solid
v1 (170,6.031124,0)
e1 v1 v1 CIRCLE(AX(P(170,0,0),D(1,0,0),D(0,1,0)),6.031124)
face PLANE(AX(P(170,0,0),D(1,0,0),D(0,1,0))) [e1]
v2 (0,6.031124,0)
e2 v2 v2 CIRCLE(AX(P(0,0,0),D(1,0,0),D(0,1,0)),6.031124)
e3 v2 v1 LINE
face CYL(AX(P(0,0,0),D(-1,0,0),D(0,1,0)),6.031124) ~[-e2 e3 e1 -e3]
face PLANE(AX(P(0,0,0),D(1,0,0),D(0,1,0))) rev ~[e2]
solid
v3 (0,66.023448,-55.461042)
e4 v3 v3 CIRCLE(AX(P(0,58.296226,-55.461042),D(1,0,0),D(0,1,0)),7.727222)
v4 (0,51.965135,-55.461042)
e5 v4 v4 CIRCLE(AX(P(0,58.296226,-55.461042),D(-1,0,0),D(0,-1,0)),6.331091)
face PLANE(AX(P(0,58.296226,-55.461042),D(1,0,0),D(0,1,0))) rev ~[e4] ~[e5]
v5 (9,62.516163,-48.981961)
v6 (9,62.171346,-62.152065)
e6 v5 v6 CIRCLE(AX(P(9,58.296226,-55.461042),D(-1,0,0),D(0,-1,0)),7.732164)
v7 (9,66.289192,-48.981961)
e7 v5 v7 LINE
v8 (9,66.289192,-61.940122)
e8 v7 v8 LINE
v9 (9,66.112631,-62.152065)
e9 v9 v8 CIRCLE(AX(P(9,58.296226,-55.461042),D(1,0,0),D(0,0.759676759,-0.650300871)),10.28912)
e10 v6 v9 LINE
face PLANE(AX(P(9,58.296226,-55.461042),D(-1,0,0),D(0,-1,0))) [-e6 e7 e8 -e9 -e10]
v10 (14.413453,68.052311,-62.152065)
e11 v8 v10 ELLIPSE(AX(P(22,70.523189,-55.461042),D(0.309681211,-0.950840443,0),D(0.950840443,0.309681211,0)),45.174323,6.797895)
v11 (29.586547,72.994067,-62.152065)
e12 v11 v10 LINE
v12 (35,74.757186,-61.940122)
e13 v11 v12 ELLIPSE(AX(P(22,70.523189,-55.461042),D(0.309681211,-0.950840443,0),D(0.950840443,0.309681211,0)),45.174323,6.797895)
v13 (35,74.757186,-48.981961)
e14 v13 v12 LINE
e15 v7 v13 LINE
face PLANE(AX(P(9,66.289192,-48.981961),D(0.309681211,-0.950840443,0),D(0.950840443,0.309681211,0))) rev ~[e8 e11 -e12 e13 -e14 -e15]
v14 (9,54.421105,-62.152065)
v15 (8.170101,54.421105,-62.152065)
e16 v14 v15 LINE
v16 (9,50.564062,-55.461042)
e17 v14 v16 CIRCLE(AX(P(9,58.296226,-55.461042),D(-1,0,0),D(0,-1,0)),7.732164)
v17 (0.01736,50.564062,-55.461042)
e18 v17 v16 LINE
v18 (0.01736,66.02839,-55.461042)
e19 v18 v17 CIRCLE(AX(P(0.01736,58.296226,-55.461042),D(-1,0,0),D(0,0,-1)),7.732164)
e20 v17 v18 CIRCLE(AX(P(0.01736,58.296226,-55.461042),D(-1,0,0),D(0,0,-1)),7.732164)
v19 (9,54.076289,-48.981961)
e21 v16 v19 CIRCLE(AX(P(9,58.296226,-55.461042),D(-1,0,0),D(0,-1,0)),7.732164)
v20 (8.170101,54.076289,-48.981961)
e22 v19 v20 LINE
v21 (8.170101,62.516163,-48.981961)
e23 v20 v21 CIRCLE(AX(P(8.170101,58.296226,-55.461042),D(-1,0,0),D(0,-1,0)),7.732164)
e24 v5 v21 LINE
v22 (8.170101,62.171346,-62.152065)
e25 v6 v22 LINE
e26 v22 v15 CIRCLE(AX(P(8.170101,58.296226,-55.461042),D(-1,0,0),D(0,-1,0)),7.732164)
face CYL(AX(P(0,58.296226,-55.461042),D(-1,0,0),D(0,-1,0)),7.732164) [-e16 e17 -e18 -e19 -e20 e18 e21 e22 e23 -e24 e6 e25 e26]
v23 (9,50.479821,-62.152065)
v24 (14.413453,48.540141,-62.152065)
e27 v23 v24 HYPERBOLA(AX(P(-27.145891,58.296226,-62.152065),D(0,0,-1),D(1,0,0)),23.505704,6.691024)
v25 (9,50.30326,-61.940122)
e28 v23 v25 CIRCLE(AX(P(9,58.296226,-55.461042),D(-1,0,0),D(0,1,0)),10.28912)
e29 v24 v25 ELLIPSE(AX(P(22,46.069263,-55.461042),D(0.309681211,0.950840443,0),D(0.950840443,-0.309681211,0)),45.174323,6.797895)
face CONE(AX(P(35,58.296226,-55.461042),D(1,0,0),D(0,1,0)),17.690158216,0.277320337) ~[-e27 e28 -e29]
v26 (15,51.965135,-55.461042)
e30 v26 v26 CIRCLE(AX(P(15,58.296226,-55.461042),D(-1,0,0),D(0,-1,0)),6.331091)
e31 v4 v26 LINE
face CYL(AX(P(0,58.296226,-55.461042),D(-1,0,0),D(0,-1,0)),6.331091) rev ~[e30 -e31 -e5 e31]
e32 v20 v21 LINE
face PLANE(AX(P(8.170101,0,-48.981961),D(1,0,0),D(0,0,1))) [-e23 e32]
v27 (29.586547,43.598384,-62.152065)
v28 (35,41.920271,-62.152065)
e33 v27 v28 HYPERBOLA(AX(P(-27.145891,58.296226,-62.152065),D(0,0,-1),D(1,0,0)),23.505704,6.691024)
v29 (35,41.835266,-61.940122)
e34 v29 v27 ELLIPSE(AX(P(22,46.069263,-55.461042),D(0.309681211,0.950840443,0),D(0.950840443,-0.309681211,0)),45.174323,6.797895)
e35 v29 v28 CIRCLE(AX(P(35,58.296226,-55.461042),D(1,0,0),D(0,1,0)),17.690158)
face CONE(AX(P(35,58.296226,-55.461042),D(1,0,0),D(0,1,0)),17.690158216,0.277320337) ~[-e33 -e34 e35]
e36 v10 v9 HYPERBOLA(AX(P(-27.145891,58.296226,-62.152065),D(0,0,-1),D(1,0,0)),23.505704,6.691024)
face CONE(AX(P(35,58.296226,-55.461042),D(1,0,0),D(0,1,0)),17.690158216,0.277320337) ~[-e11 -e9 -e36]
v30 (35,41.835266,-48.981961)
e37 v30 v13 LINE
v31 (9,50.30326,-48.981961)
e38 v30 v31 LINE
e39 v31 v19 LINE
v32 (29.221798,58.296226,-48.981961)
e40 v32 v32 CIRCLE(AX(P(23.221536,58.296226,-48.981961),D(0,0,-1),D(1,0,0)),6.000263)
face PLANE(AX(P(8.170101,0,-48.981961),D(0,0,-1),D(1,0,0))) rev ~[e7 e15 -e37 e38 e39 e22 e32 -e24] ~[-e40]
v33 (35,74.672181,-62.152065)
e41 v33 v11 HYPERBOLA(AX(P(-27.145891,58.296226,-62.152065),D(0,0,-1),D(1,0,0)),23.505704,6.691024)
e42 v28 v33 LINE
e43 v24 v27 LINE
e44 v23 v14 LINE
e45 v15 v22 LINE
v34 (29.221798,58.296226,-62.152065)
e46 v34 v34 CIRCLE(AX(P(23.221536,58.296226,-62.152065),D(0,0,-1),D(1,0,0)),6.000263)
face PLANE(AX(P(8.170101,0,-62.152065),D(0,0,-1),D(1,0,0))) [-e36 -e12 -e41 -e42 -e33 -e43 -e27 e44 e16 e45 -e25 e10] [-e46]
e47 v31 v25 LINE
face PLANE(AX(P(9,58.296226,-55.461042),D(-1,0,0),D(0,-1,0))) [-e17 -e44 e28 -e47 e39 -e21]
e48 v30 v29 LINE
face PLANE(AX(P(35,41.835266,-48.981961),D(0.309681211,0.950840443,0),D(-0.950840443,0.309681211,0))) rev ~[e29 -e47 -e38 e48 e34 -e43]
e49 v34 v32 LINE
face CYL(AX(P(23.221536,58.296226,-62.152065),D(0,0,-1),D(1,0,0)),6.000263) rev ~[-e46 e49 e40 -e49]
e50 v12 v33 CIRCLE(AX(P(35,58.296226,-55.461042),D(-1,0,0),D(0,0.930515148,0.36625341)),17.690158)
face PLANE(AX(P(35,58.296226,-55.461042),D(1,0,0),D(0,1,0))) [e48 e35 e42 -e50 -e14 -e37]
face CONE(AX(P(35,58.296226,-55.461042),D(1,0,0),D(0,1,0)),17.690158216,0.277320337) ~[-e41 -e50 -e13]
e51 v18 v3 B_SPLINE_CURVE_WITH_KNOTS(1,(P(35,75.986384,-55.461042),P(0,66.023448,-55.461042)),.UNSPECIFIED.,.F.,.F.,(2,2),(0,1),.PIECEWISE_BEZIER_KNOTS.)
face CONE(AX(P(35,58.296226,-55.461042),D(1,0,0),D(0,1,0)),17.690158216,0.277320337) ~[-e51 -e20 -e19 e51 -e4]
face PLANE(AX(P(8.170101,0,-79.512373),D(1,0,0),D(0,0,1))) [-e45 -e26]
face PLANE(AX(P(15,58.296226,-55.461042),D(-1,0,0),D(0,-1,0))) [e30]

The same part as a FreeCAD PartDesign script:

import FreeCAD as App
import Part
import Sketcher
from FreeCAD import Vector
Q = App.Units.Quantity


def add_polygon(sketch, points):
    """Adds a closed chain of lines whose ends are joined by coincident constraints."""
    first, n = sketch.GeometryCount, len(points)
    for a, b in zip(points, points[1:] + points[:1]):
        sketch.addGeometry(Part.LineSegment(App.Vector(*a, 0), App.Vector(*b, 0)), False)
    for i in range(n):
        sketch.addConstraint(Sketcher.Constraint("Coincident", first + i, 2, first + (i + 1) % n, 1))

doc = App.newDocument("Part")
body = doc.addObject("PartDesign::Body", "Body")

# Sketch on YZ plane
sketch1 = doc.addObject("Sketcher::SketchObject", "Sketch")
body.addObject(sketch1)
sketch1.AttachmentSupport = (doc.YZ_Plane, [""])
sketch1.MapMode = "FlatFace"
sketch1.addGeometry(Part.Circle(Vector(0, 0, 0), Vector(0, 0, 1), 6.031124), False)
sketch1.addConstraint(Sketcher.Constraint("Coincident", 0, 3, -1, 1))
sketch1.addConstraint(Sketcher.Constraint("Diameter", 0, Q("12.062248 mm")))
pad1 = doc.addObject("PartDesign::Pad", "Pad")
body.addObject(pad1)
pad1.Profile = sketch1
pad1.Length = 170
body2 = doc.addObject("PartDesign::Body", "Body001")

# Sketch on YZ plane
sketch2 = doc.addObject("Sketcher::SketchObject", "Sketch001")
body2.addObject(sketch2)
sketch2.AttachmentSupport = (doc.getObject("YZ_Plane001"), [""])
sketch2.MapMode = "FlatFace"
sketch2.AttachmentOffset = App.Placement(Vector(0, 0, 35), App.Rotation())
sketch2.addGeometry(Part.Circle(Vector(58.296226, -55.461042, 0), Vector(0, 0, 1), 17.690158), False)
sketch2.addConstraint(Sketcher.Constraint("Diameter", 0, Q("35.380316 mm")))
sketch2.addConstraint(Sketcher.Constraint("DistanceY", 0, 3, -1, 1, Q("55.461042 mm")))
sketch2.addConstraint(Sketcher.Constraint("DistanceX", -1, 1, 0, 3, Q("58.296226 mm")))

# Sketch on YZ plane
sketch3 = doc.addObject("Sketcher::SketchObject", "Sketch002")
body2.addObject(sketch3)
sketch3.AttachmentSupport = (doc.getObject("YZ_Plane001"), [""])
sketch3.MapMode = "FlatFace"
sketch3.addGeometry(Part.Circle(Vector(58.296226, -55.461042, 0), Vector(0, 0, 1), 7.727222), False)
sketch3.addConstraint(Sketcher.Constraint("Diameter", 0, Q("15.454444 mm")))
sketch3.addConstraint(Sketcher.Constraint("DistanceY", 0, 3, -1, 1, Q("55.461042 mm")))
sketch3.addConstraint(Sketcher.Constraint("DistanceX", -1, 1, 0, 3, Q("58.296226 mm")))

additiveloft = doc.addObject("PartDesign::AdditiveLoft", "AdditiveLoft")
body2.addObject(additiveloft)
additiveloft.Profile = sketch2
additiveloft.Sections = [sketch3]

# Sketch on XZ plane
sketch4 = doc.addObject("Sketcher::SketchObject", "Sketch003")
body2.addObject(sketch4)
sketch4.AttachmentSupport = (doc.getObject("XZ_Plane001"), [""])
sketch4.MapMode = "FlatFace"
add_polygon(sketch4, [(8.170101, -62.152065), (8.170101, -79.512373), (35.051547, -79.512373), (35.051547, -62.152065)])  # lines 0-3
add_polygon(sketch4, [(8.170101, -32.514945), (8.170101, -48.981961), (35.051547, -48.981961), (35.051547, -32.514945)])  # lines 4-7
sketch4.addConstraint(Sketcher.Constraint("Vertical", 0))
sketch4.addConstraint(Sketcher.Constraint("Horizontal", 1))
sketch4.addConstraint(Sketcher.Constraint("Vertical", 2))
sketch4.addConstraint(Sketcher.Constraint("Horizontal", 3))
sketch4.addConstraint(Sketcher.Constraint("Vertical", 4))
sketch4.addConstraint(Sketcher.Constraint("Horizontal", 5))
sketch4.addConstraint(Sketcher.Constraint("Vertical", 6))
sketch4.addConstraint(Sketcher.Constraint("Horizontal", 7))
sketch4.addConstraint(Sketcher.Constraint("Vertical", 3, 2, 4, 2))
sketch4.addConstraint(Sketcher.Constraint("Vertical", 2, 2, 5, 2))
sketch4.addConstraint(Sketcher.Constraint("DistanceX", -1, 1, 0, 2, Q("8.170101 mm")))
sketch4.addConstraint(Sketcher.Constraint("DistanceX", 1, 1, 1, 2, Q("26.881446 mm")))
sketch4.addConstraint(Sketcher.Constraint("DistanceY", 0, 2, 0, 1, Q("17.360307 mm")))
sketch4.addConstraint(Sketcher.Constraint("DistanceY", 4, 2, 4, 1, Q("16.467016 mm")))
sketch4.addConstraint(Sketcher.Constraint("DistanceY", 4, 2, -1, 1, Q("48.981961 mm")))
sketch4.addConstraint(Sketcher.Constraint("DistanceY", 0, 2, 4, 2, Q("30.530412 mm")))
pocket1 = doc.addObject("PartDesign::Pocket", "Pocket")
body2.addObject(pocket1)
pocket1.Profile = sketch4
pocket1.Length = 100

# Sketch on YZ plane
sketch5 = doc.addObject("Sketcher::SketchObject", "Sketch004")
body2.addObject(sketch5)
sketch5.AttachmentSupport = (doc.getObject("YZ_Plane001"), [""])
sketch5.MapMode = "FlatFace"
sketch5.addGeometry(Part.Circle(Vector(58.296226, -55.461042, 0), Vector(0, 0, 1), 11.562434), False)
sketch5.addGeometry(Part.Circle(Vector(58.296226, -55.461042, 0), Vector(0, 0, 1), 7.732164), False)
sketch5.addConstraint(Sketcher.Constraint("Coincident", 1, 3, 0, 3))
sketch5.addConstraint(Sketcher.Constraint("Diameter", 0, Q("23.124868 mm")))
sketch5.addConstraint(Sketcher.Constraint("Diameter", 1, Q("15.464328 mm")))
sketch5.addConstraint(Sketcher.Constraint("DistanceY", 0, 3, -1, 1, Q("55.461042 mm")))
sketch5.addConstraint(Sketcher.Constraint("DistanceX", -1, 1, 0, 3, Q("58.296226 mm")))
pocket2 = doc.addObject("PartDesign::Pocket", "Pocket001")
body2.addObject(pocket2)
pocket2.Profile = sketch5
pocket2.Length = 9
pocket2.Reversed = True

# Sketch on XY plane
sketch6 = doc.addObject("Sketcher::SketchObject", "Sketch005")
body2.addObject(sketch6)
sketch6.AttachmentSupport = (doc.getObject("XY_Plane001"), [""])
sketch6.MapMode = "FlatFace"
sketch6.AttachmentOffset = App.Placement(Vector(0, 0, -48.981961), App.Rotation())
add_polygon(sketch6, [(9, 69.806159), (9, 66.289192), (35, 74.757186), (35, 77.776559)])  # lines 0-3
add_polygon(sketch6, [(35, 41.835266), (9, 50.30326), (9, 46.110798), (35, 38.41491)])  # lines 4-7
sketch6.addConstraint(Sketcher.Constraint("Vertical", 0))
sketch6.addConstraint(Sketcher.Constraint("Vertical", 2))
sketch6.addConstraint(Sketcher.Constraint("Vertical", 5))
sketch6.addConstraint(Sketcher.Constraint("Vertical", 7))
sketch6.addConstraint(Sketcher.Constraint("Vertical", 3, 2, 4, 2))
sketch6.addConstraint(Sketcher.Constraint("Vertical", 2, 2, 6, 2))
sketch6.addConstraint(Sketcher.Constraint("Equal", 1, 4))
sketch6.addConstraint(Sketcher.Constraint("DistanceX", -1, 1, 0, 2, Q("9 mm")))
sketch6.addConstraint(Sketcher.Constraint("DistanceX", -1, 1, 1, 2, Q("35 mm")))
sketch6.addConstraint(Sketcher.Constraint("Angle", 1, Q("18.04002 deg")))
sketch6.addConstraint(Sketcher.Constraint("DistanceY", 3, 2, 2, 2, Q("7.9704 mm")))
sketch6.addConstraint(Sketcher.Constraint("DistanceY", 4, 2, 3, 2, Q("19.502898 mm")))
sketch6.addConstraint(Sketcher.Constraint("DistanceY", 0, 2, 0, 1, Q("3.516967 mm")))
sketch6.addConstraint(Sketcher.Constraint("DistanceY", 5, 2, 5, 1, Q("4.192462 mm")))
sketch6.addConstraint(Sketcher.Constraint("DistanceY", 7, 1, 7, 2, Q("3.420355 mm")))
sketch6.addConstraint(Sketcher.Constraint("DistanceY", -1, 1, 0, 2, Q("66.289192 mm")))
pocket3 = doc.addObject("PartDesign::Pocket", "Pocket002")
body2.addObject(pocket3)
pocket3.Profile = sketch6
pocket3.Length = 25

# Sketch on XY plane
sketch7 = doc.addObject("Sketcher::SketchObject", "Sketch006")
body2.addObject(sketch7)
sketch7.AttachmentSupport = (doc.getObject("XY_Plane001"), [""])
sketch7.MapMode = "FlatFace"
sketch7.AttachmentOffset = App.Placement(Vector(0, 0, -62.152065), App.Rotation())
sketch7.addGeometry(Part.Circle(Vector(23.221536, 58.296226, 0), Vector(0, 0, 1), 6.000263), False)
sketch7.addConstraint(Sketcher.Constraint("Diameter", 0, Q("12.000525 mm")))
sketch7.addConstraint(Sketcher.Constraint("DistanceX", -1, 1, 0, 3, Q("23.221536 mm")))
sketch7.addConstraint(Sketcher.Constraint("DistanceY", -1, 1, 0, 3, Q("58.296226 mm")))
pocket4 = doc.addObject("PartDesign::Pocket", "Pocket003")
body2.addObject(pocket4)
pocket4.Profile = sketch7
pocket4.Length = 25
pocket4.Reversed = True

# Sketch on YZ plane
sketch8 = doc.addObject("Sketcher::SketchObject", "Sketch007")
body2.addObject(sketch8)
sketch8.AttachmentSupport = (doc.getObject("YZ_Plane001"), [""])
sketch8.MapMode = "FlatFace"
sketch8.addGeometry(Part.Circle(Vector(58.296226, -55.461042, 0), Vector(0, 0, 1), 6.331091), False)
sketch8.addConstraint(Sketcher.Constraint("Diameter", 0, Q("12.662183 mm")))
sketch8.addConstraint(Sketcher.Constraint("DistanceY", 0, 3, -1, 1, Q("55.461042 mm")))
sketch8.addConstraint(Sketcher.Constraint("DistanceX", -1, 1, 0, 3, Q("58.296226 mm")))
pocket5 = doc.addObject("PartDesign::Pocket", "Pocket004")
body2.addObject(pocket5)
pocket5.Profile = sketch8
pocket5.Length = 15
pocket5.Reversed = True

doc.recompute()
